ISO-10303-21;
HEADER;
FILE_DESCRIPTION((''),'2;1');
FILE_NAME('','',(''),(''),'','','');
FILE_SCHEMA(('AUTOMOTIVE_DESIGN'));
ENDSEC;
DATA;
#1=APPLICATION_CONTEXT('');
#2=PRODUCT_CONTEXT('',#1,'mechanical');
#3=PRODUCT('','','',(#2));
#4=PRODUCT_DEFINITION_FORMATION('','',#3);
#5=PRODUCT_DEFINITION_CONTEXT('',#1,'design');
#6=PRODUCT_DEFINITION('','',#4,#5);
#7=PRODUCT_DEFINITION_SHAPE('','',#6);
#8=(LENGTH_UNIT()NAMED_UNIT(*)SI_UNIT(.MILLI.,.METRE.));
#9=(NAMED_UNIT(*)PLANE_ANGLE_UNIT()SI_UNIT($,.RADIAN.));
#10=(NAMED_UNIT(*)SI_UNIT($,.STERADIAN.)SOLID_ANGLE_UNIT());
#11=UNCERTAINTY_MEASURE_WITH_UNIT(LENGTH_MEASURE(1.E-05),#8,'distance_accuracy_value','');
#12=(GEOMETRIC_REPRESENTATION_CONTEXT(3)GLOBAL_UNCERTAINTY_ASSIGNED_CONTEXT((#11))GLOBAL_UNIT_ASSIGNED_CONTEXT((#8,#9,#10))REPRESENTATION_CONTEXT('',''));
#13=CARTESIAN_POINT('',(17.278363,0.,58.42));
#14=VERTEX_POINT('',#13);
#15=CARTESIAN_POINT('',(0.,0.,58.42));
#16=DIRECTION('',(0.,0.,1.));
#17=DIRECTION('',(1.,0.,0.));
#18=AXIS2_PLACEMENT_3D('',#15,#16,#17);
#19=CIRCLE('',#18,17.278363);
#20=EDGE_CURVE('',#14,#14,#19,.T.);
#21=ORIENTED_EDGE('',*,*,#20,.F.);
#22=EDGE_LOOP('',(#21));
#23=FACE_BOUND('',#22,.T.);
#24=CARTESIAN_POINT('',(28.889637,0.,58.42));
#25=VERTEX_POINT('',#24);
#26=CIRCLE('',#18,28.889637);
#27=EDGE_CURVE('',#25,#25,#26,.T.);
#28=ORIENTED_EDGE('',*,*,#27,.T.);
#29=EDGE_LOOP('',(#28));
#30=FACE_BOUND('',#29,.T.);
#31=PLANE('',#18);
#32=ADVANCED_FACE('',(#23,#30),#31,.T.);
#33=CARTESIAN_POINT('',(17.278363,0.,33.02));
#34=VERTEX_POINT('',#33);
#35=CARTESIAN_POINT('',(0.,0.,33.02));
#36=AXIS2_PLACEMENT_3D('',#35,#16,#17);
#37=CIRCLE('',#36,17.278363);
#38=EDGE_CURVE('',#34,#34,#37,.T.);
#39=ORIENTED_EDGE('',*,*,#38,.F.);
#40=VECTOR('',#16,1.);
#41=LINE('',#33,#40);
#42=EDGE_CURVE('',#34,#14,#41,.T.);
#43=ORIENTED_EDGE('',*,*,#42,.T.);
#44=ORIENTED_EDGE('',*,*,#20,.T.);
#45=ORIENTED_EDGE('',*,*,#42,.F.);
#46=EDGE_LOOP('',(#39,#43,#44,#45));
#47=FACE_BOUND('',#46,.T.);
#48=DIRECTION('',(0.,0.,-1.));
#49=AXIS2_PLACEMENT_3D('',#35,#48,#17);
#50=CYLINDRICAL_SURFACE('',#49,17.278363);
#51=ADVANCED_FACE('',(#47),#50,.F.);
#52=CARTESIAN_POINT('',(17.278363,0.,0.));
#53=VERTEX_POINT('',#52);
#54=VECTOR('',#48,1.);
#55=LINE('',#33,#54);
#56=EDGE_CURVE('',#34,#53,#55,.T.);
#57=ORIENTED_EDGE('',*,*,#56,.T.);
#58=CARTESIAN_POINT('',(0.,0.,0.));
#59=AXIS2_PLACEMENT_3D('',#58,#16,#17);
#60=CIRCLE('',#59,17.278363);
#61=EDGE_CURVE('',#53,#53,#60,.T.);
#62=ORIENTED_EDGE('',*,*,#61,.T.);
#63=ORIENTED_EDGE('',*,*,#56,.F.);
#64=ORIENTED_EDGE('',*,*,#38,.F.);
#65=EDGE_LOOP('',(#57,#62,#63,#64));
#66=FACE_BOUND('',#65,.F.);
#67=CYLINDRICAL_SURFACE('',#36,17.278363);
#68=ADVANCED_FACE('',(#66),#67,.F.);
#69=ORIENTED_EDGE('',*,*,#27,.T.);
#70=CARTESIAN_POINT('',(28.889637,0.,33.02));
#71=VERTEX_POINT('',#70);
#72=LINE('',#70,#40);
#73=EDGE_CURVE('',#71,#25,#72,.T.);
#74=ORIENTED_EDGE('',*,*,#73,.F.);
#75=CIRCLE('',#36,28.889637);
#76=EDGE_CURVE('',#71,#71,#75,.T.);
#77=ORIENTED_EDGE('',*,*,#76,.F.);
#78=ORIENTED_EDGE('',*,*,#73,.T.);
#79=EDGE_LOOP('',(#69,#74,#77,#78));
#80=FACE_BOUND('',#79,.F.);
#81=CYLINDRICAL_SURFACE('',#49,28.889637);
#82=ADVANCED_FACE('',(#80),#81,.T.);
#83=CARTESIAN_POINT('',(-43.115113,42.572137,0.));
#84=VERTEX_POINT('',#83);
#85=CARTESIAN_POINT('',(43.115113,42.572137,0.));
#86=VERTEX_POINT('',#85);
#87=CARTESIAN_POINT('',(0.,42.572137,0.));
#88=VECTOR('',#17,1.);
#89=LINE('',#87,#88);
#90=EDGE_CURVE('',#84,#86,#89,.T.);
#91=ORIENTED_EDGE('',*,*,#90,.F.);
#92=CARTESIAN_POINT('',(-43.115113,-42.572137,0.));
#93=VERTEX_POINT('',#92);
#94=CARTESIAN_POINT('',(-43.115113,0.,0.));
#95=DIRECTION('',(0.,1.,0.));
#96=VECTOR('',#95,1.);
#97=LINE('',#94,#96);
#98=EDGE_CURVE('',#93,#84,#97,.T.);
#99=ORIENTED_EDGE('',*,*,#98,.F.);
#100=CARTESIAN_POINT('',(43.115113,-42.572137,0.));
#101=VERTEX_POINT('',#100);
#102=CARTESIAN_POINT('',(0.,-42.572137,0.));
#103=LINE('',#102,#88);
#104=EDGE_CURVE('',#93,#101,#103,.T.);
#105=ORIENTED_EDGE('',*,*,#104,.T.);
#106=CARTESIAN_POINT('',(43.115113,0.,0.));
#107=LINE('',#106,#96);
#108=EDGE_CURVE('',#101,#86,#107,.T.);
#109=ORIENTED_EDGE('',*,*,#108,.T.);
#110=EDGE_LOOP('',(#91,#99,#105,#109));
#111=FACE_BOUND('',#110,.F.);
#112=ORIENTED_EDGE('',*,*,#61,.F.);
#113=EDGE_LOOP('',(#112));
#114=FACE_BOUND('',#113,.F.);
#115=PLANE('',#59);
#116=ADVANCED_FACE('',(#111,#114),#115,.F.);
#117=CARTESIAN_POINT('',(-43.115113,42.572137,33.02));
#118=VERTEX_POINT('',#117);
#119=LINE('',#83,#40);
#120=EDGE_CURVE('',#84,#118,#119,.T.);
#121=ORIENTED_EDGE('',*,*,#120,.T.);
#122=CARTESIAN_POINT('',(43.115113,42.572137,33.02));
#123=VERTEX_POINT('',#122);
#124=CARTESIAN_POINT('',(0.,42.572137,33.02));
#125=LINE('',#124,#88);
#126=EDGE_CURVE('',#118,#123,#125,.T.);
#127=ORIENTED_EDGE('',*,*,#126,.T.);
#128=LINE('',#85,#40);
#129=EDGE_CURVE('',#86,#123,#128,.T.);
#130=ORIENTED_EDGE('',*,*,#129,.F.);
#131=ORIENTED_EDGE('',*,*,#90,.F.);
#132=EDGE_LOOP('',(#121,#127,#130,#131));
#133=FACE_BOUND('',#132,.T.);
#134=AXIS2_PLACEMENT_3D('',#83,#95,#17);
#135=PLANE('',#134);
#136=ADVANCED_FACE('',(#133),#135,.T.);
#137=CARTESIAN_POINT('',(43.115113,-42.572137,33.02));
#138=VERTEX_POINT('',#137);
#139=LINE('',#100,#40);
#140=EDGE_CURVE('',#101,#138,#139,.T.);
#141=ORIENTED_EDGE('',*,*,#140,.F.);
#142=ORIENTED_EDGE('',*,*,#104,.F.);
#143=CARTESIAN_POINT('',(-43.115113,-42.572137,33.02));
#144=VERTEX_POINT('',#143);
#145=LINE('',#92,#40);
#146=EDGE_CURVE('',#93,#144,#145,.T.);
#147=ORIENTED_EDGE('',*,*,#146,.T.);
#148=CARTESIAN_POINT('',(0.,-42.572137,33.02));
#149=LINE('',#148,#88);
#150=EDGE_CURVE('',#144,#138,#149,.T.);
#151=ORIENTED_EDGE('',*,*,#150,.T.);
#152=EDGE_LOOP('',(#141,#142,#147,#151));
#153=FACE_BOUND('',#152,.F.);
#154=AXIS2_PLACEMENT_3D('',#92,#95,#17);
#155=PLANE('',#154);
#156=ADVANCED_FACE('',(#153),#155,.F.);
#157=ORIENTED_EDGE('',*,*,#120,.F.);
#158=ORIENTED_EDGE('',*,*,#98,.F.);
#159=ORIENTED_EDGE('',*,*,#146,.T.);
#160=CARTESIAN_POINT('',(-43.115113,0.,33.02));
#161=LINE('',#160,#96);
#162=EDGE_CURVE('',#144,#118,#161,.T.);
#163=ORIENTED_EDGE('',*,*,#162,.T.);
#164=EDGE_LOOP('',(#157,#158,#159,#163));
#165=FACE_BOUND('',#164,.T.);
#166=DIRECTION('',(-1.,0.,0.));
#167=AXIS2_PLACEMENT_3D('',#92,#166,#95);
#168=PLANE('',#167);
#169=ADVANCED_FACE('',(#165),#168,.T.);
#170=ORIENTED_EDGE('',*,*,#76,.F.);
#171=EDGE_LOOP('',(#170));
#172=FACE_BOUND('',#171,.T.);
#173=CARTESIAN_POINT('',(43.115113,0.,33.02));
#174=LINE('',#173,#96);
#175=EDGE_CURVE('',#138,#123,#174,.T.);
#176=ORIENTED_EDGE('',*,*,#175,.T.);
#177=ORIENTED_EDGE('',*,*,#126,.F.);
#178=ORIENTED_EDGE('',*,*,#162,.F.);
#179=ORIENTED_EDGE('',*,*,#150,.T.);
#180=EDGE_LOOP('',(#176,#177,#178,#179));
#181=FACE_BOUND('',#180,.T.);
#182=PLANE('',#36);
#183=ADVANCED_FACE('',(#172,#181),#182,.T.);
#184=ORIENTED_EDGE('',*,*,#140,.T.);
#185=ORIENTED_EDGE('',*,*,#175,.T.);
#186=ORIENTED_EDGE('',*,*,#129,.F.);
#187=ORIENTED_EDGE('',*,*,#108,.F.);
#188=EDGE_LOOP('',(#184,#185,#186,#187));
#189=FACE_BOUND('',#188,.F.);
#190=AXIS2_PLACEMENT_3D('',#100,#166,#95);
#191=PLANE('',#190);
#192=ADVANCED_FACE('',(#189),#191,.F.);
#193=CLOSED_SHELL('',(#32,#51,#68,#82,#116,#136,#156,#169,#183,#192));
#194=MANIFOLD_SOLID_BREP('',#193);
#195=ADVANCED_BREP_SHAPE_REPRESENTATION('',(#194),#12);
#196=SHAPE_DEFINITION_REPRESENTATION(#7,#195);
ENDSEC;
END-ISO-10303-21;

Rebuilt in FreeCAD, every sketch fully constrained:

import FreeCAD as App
import Part
import Sketcher
Q = App.Units.Quantity


def add_polygon(sketch, points):
    """Adds a closed chain of lines whose ends are joined by coincident constraints."""
    first, n = sketch.GeometryCount, len(points)
    for a, b in zip(points, points[1:] + points[:1]):
        sketch.addGeometry(Part.LineSegment(App.Vector(*a, 0), App.Vector(*b, 0)), False)
    for i in range(n):
        sketch.addConstraint(Sketcher.Constraint("Coincident", first + i, 2, first + (i + 1) % n, 1))

doc = App.newDocument("Part")
params = doc.addObject("Spreadsheet::Sheet", "Params")
for row, (alias, value) in enumerate([
    ("pad1_length", "1.3 in"),
    ("pad2_length", "1 in"),
    ("pocket1_length", "5 in"),
], start=1):
    params.set(f"A{row}", alias)
    params.set(f"B{row}", "=" + value)
    params.setAlias(f"B{row}", alias)

body = doc.addObject("PartDesign::Body", "Body")

# Sketch on XY plane
sketch1 = doc.addObject("Sketcher::SketchObject", "Sketch")
body.addObject(sketch1)
sketch1.AttachmentSupport = (doc.XY_Plane, [""])
sketch1.MapMode = "FlatFace"
add_polygon(sketch1, [(-43.115113, 42.572137), (-43.115113, -42.572137), (43.115113, -42.572137), (43.115113, 42.572137)])  # lines 0-3
sketch1.addConstraint([
    Sketcher.Constraint("Vertical", 0),
    Sketcher.Constraint("Horizontal", 1),
    Sketcher.Constraint("Vertical", 2),
    Sketcher.Constraint("Horizontal", 3),
    Sketcher.Constraint("Symmetric", 0, 2, 2, 2, -1, 1),
    Sketcher.Constraint("DistanceX", 1, 1, 1, 2, Q("86.230226 mm")),
    Sketcher.Constraint("DistanceY", 0, 2, 0, 1, Q("85.144274 mm")),
])
pad1 = doc.addObject("PartDesign::Pad", "Pad")
body.addObject(pad1)
pad1.Profile = sketch1
pad1.setExpression("Length", "Params.pad1_length")

# Sketch on XY plane
sketch2 = doc.addObject("Sketcher::SketchObject", "Sketch001")
body.addObject(sketch2)
sketch2.AttachmentSupport = (doc.XY_Plane, [""])
sketch2.MapMode = "FlatFace"
sketch2.AttachmentOffset = App.Placement(App.Vector(0, 0, 1.3 * 25.4), App.Rotation())
sketch2.addGeometry([
    Part.Circle(App.Vector(0, 0, 0), App.Vector(0, 0, 1), 28.889637),
    Part.Circle(App.Vector(0, 0, 0), App.Vector(0, 0, 1), 17.278363),
], False)
sketch2.addConstraint([
    Sketcher.Constraint("Coincident", 0, 3, -1, 1),
    Sketcher.Constraint("Coincident", 1, 3, -1, 1),
    Sketcher.Constraint("Diameter", 0, Q("57.779274 mm")),
    Sketcher.Constraint("Diameter", 1, Q("34.556726 mm")),
])
pad2 = doc.addObject("PartDesign::Pad", "Pad001")
body.addObject(pad2)
pad2.Profile = sketch2
pad2.setExpression("Length", "Params.pad2_length")

# Sketch on XY plane
sketch3 = doc.addObject("Sketcher::SketchObject", "Sketch002")
body.addObject(sketch3)
sketch3.AttachmentSupport = (doc.XY_Plane, [""])
sketch3.MapMode = "FlatFace"
sketch3.AttachmentOffset = App.Placement(App.Vector(0, 0, 1.3 * 25.4), App.Rotation())
sketch3.addGeometry(Part.Circle(App.Vector(0, 0, 0), App.Vector(0, 0, 1), 17.278363), False)
sketch3.addConstraint([
    Sketcher.Constraint("Coincident", 0, 3, -1, 1),
    Sketcher.Constraint("Diameter", 0, Q("34.556726 mm")),
])
pocket1 = doc.addObject("PartDesign::Pocket", "Pocket")
body.addObject(pocket1)
pocket1.Profile = sketch3
pocket1.setExpression("Length", "Params.pocket1_length")

doc.recompute()
